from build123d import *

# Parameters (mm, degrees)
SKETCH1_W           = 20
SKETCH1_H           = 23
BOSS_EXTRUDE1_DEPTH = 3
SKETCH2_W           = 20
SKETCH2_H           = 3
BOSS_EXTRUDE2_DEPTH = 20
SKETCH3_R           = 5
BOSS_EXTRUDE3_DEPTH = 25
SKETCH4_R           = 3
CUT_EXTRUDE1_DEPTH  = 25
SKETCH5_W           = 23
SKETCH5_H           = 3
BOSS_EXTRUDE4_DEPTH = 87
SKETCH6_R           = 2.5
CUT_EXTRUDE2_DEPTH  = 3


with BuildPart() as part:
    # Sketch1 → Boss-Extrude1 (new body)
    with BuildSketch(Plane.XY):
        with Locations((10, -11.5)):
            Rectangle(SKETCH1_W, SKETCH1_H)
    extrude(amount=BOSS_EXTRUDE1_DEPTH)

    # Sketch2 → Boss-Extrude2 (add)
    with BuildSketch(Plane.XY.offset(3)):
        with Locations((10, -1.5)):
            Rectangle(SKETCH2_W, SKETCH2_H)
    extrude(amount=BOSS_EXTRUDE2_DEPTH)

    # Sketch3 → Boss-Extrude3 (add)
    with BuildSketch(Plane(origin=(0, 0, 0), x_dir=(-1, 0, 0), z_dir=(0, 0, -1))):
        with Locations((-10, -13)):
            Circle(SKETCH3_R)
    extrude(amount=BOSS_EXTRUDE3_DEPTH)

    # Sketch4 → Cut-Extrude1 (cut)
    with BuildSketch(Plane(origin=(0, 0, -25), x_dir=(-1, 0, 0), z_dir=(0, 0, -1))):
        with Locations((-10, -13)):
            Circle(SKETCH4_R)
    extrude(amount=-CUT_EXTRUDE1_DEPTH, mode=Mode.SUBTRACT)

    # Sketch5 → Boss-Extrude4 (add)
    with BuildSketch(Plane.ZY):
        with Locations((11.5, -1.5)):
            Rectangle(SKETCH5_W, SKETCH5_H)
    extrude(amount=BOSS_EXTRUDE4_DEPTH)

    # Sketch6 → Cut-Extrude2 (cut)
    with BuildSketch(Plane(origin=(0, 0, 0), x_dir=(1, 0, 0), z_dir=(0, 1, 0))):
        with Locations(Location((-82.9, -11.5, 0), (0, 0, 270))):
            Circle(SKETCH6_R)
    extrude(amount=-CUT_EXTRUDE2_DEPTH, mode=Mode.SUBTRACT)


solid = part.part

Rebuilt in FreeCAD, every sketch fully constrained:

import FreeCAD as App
import Part
import Sketcher
from FreeCAD import Vector
Q = App.Units.Quantity


def add_polygon(sketch, points):
    """Adds a closed chain of lines whose ends are joined by coincident constraints."""
    first, n = sketch.GeometryCount, len(points)
    for a, b in zip(points, points[1:] + points[:1]):
        sketch.addGeometry(Part.LineSegment(App.Vector(*a, 0), App.Vector(*b, 0)), False)
    for i in range(n):
        sketch.addConstraint(Sketcher.Constraint("Coincident", first + i, 2, first + (i + 1) % n, 1))

doc = App.newDocument("Part")
body = doc.addObject("PartDesign::Body", "Body")

# Sketch on XY plane
sketch1 = body.newObject("Sketcher::SketchObject", "Sketch")
sketch1.AttachmentSupport = (doc.getObject("XY_Plane"), [""])
sketch1.MapMode = "FlatFace"
add_polygon(sketch1, [(0, 0), (0, -23), (20, -23), (20, 0)])  # lines 0-3
sketch1.addConstraint([
    Sketcher.Constraint("Vertical", 0),
    Sketcher.Constraint("Horizontal", 1),
    Sketcher.Constraint("Vertical", 2),
    Sketcher.Constraint("Horizontal", 3),
    Sketcher.Constraint("Coincident", 3, 2, -1, 1),
    Sketcher.Constraint("DistanceX", 1, 1, 1, 2, Q("20 mm")),
    Sketcher.Constraint("DistanceY", 0, 2, 0, 1, Q("23 mm")),
])
pad1 = body.newObject("PartDesign::Pad", "Pad")
pad1.Profile = sketch1
pad1.Length = 3

# Sketch on XY plane
sketch2 = body.newObject("Sketcher::SketchObject", "Sketch001")
sketch2.AttachmentSupport = (doc.getObject("XY_Plane"), [""])
sketch2.MapMode = "FlatFace"
sketch2.AttachmentOffset = App.Placement(Vector(0, 0, 3), App.Rotation())
add_polygon(sketch2, [(0, 0), (0, -3), (20, -3), (20, 0)])  # lines 0-3
sketch2.addConstraint([
    Sketcher.Constraint("Vertical", 0),
    Sketcher.Constraint("Horizontal", 1),
    Sketcher.Constraint("Vertical", 2),
    Sketcher.Constraint("Horizontal", 3),
    Sketcher.Constraint("Coincident", 3, 2, -1, 1),
    Sketcher.Constraint("DistanceX", 1, 1, 1, 2, Q("20 mm")),
    Sketcher.Constraint("DistanceY", 0, 2, 0, 1, Q("3 mm")),
])
pad2 = body.newObject("PartDesign::Pad", "Pad001")
pad2.Profile = sketch2
pad2.Length = 20

# Sketch on XY plane
sketch3 = body.newObject("Sketcher::SketchObject", "Sketch002")
sketch3.AttachmentSupport = (doc.getObject("XY_Plane"), [""])
sketch3.MapMode = "FlatFace"
sketch3.addGeometry(Part.Circle(Vector(10, -13, 0), Vector(0, 0, 1), 5), False)
sketch3.addConstraint([
    Sketcher.Constraint("Diameter", 0, Q("10 mm")),
    Sketcher.Constraint("DistanceX", -1, 1, 0, 3, Q("10 mm")),
    Sketcher.Constraint("DistanceY", 0, 3, -1, 1, Q("13 mm")),
])
pad3 = body.newObject("PartDesign::Pad", "Pad002")
pad3.Profile = sketch3
pad3.Length = 25
pad3.Reversed = True

# Sketch on XY plane
sketch4 = body.newObject("Sketcher::SketchObject", "Sketch003")
sketch4.AttachmentSupport = (doc.getObject("XY_Plane"), [""])
sketch4.MapMode = "FlatFace"
sketch4.AttachmentOffset = App.Placement(Vector(0, 0, -25), App.Rotation())
sketch4.addGeometry(Part.Circle(Vector(10, -13, 0), Vector(0, 0, 1), 3), False)
sketch4.addConstraint([
    Sketcher.Constraint("Diameter", 0, Q("6 mm")),
    Sketcher.Constraint("DistanceX", -1, 1, 0, 3, Q("10 mm")),
    Sketcher.Constraint("DistanceY", 0, 3, -1, 1, Q("13 mm")),
])
pocket1 = body.newObject("PartDesign::Pocket", "Pocket")
pocket1.Profile = sketch4
pocket1.Length = 25
pocket1.Reversed = True

# Sketch on YZ plane
sketch5 = body.newObject("Sketcher::SketchObject", "Sketch004")
sketch5.AttachmentSupport = (doc.getObject("YZ_Plane"), [""])
sketch5.MapMode = "FlatFace"
add_polygon(sketch5, [(0, 0), (-3, 0), (-3, 23), (0, 23)])  # lines 0-3
sketch5.addConstraint([
    Sketcher.Constraint("Horizontal", 0),
    Sketcher.Constraint("Vertical", 1),
    Sketcher.Constraint("Horizontal", 2),
    Sketcher.Constraint("Vertical", 3),
    Sketcher.Constraint("Coincident", 3, 2, -1, 1),
    Sketcher.Constraint("DistanceX", 0, 2, 0, 1, Q("3 mm")),
    Sketcher.Constraint("DistanceY", 1, 1, 1, 2, Q("23 mm")),
])
pad4 = body.newObject("PartDesign::Pad", "Pad003")
pad4.Profile = sketch5
pad4.Length = 87
pad4.Reversed = True

# Sketch on XZ plane
sketch6 = body.newObject("Sketcher::SketchObject", "Sketch005")
sketch6.AttachmentSupport = (doc.getObject("XZ_Plane"), [""])
sketch6.MapMode = "FlatFace"
sketch6.addGeometry(Part.Circle(Vector(-82.9, 11.5, 0), Vector(0, 0, 1), 2.5), False)
sketch6.addConstraint([
    Sketcher.Constraint("Diameter", 0, Q("5 mm")),
    Sketcher.Constraint("DistanceX", 0, 3, -1, 1, Q("82.9 mm")),
    Sketcher.Constraint("DistanceY", -1, 1, 0, 3, Q("11.5 mm")),
])
pocket2 = body.newObject("PartDesign::Pocket", "Pocket001")
pocket2.Profile = sketch6
pocket2.Length = 3
pocket2.Reversed = True

doc.recompute()
